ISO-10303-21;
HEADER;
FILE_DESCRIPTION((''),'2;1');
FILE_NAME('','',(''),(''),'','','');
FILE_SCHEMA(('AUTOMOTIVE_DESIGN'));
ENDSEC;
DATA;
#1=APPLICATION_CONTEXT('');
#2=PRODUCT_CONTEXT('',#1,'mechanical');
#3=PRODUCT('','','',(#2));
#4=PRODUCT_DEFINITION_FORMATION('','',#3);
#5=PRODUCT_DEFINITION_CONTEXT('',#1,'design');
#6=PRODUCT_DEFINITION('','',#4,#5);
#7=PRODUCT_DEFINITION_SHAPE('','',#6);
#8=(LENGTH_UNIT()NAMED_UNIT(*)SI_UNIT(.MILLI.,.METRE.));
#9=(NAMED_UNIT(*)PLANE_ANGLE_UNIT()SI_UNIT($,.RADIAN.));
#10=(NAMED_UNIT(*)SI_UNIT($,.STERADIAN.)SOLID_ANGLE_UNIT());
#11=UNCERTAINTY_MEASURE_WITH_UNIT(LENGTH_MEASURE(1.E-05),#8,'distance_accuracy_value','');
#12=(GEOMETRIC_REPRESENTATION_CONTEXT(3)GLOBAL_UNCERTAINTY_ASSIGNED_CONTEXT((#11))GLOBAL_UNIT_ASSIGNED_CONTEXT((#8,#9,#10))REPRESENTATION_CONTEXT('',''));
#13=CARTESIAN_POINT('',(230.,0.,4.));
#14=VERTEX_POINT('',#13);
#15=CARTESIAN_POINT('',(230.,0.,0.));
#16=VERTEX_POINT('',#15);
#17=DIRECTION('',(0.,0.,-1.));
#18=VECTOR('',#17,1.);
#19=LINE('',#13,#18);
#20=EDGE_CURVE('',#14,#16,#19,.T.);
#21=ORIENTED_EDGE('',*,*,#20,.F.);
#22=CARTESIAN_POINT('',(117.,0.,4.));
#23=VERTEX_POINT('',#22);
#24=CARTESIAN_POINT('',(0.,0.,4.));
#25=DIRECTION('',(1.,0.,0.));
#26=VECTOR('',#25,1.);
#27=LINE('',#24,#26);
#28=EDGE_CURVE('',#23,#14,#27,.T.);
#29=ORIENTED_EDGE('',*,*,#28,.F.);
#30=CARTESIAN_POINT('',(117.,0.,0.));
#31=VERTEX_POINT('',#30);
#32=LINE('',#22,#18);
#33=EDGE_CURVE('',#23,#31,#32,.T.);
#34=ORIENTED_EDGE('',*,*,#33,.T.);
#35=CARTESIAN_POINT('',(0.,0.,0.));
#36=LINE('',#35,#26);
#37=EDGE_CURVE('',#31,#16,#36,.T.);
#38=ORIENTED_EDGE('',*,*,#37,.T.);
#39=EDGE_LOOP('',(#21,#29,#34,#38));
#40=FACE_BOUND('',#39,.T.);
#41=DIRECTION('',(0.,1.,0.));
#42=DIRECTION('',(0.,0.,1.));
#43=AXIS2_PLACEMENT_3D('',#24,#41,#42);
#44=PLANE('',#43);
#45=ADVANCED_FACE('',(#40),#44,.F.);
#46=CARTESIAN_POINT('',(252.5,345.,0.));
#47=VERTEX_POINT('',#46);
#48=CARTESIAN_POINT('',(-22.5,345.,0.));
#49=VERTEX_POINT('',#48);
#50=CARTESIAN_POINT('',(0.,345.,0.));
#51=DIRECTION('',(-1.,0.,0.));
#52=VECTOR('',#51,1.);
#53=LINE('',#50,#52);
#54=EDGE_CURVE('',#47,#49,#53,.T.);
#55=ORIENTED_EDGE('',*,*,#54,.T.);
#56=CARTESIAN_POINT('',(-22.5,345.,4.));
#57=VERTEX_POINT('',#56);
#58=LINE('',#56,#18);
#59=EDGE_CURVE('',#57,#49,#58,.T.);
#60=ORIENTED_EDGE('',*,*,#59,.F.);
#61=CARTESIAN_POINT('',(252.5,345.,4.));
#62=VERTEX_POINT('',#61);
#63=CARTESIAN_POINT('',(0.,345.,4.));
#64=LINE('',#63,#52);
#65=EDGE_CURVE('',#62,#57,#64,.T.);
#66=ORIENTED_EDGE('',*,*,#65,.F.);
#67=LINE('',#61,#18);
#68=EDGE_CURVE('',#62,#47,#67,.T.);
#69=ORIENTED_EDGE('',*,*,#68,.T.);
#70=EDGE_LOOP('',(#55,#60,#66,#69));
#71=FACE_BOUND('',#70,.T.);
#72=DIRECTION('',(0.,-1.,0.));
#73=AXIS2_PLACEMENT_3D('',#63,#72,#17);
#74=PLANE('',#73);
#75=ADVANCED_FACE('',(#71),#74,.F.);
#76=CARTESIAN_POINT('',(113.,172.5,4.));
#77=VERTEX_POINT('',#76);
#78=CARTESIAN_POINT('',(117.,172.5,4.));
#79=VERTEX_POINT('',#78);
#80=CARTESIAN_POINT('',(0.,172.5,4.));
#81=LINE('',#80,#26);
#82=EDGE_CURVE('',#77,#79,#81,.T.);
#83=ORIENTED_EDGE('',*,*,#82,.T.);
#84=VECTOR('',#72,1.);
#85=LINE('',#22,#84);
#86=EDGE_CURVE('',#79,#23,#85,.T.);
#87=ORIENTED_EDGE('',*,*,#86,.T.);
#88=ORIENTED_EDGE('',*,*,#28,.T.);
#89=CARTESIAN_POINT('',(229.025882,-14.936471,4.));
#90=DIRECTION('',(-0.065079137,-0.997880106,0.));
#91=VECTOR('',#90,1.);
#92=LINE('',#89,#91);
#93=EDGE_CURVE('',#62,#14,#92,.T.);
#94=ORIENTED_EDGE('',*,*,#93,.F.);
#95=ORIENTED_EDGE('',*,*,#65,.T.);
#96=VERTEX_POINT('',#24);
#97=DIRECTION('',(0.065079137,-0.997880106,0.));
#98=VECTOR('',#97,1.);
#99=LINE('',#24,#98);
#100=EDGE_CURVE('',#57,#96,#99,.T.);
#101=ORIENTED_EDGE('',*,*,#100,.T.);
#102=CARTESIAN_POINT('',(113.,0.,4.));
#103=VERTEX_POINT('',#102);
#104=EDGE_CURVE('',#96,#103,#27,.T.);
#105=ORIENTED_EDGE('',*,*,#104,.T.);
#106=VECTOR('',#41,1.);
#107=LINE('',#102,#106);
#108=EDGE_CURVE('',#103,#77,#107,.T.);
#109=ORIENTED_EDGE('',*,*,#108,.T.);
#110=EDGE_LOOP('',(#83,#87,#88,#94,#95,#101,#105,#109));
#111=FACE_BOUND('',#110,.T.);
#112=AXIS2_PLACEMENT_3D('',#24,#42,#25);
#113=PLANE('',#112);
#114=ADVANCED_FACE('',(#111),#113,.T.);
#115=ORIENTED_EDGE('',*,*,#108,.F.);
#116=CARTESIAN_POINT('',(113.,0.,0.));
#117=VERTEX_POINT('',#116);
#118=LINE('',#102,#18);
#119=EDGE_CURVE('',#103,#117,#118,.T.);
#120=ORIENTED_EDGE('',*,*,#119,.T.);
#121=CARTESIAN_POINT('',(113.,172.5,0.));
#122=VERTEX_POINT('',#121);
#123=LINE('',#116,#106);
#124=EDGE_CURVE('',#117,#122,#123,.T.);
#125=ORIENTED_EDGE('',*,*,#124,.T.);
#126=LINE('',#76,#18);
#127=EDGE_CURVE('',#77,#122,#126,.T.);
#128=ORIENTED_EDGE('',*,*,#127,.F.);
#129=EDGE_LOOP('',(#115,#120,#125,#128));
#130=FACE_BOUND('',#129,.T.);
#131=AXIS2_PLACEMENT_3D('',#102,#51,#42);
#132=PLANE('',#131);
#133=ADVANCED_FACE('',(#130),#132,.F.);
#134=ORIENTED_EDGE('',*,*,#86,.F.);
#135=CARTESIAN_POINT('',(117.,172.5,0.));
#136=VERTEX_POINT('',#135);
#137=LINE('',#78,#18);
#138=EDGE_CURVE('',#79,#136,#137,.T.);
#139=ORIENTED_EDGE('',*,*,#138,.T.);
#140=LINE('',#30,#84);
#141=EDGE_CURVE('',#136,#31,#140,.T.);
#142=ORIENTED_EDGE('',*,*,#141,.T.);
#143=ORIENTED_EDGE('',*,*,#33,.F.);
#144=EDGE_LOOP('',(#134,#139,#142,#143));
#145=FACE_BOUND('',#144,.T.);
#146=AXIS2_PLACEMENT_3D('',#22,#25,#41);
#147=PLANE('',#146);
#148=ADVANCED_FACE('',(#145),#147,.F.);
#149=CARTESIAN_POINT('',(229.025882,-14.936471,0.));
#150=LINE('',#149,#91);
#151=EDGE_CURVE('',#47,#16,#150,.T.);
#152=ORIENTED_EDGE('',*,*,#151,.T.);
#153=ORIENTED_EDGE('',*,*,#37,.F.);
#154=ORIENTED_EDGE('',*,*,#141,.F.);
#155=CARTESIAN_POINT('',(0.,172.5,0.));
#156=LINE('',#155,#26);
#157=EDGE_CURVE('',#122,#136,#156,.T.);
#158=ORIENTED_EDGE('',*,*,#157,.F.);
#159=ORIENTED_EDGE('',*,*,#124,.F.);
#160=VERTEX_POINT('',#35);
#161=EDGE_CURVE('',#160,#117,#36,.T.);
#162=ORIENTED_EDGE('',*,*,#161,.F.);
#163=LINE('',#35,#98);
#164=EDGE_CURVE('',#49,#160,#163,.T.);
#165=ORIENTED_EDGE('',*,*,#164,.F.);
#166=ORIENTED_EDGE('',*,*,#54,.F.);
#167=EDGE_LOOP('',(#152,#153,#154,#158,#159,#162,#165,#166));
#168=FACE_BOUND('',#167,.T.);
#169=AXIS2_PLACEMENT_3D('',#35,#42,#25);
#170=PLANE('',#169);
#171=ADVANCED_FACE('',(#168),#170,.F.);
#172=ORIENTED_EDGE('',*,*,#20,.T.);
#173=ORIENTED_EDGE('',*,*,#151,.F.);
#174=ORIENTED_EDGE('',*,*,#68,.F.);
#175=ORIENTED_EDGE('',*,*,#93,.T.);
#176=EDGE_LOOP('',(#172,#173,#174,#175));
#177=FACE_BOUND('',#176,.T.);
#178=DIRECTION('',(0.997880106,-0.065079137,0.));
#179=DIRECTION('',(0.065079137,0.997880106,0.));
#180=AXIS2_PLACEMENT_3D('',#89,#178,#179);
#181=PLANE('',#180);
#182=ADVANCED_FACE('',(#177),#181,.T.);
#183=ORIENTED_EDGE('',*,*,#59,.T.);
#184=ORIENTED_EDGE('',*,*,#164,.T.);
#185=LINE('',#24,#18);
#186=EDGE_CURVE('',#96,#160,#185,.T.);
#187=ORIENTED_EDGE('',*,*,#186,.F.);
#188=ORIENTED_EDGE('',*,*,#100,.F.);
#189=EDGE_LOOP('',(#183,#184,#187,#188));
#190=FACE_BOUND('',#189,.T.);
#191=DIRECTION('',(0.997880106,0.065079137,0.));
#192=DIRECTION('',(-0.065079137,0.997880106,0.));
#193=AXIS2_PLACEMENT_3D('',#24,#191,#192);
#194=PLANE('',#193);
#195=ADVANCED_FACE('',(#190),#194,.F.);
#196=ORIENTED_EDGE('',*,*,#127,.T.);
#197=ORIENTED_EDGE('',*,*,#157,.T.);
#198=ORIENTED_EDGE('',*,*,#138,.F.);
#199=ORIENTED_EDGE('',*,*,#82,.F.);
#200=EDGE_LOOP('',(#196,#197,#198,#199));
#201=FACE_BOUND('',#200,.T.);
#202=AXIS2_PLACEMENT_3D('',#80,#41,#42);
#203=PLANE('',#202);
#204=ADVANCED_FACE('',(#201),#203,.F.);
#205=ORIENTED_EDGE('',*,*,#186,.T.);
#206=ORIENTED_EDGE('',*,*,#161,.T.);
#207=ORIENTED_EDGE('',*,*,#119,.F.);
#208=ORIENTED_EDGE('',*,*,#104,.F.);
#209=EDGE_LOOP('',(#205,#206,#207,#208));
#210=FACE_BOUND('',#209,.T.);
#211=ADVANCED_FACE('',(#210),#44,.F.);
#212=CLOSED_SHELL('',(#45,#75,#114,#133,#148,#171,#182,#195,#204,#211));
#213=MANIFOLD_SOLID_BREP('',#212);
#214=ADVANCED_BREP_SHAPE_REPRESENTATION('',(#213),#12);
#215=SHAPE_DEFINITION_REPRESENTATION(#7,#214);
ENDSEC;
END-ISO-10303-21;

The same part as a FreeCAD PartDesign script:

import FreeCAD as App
import Part
import Sketcher
from FreeCAD import Vector
Q = App.Units.Quantity

doc = App.newDocument("Part")
body = doc.addObject("PartDesign::Body", "Body")

# Sketch on XY plane
sketch1 = body.newObject("Sketcher::SketchObject", "Sketch")
sketch1.AttachmentSupport = (doc.getObject("XY_Plane"), [""])
sketch1.MapMode = "FlatFace"
sketch1.addGeometry([
    Part.LineSegment(Vector(-22.5, 345, 0), Vector(0, 0, 0)),  # 0
    Part.LineSegment(Vector(0, 0, 0), Vector(113, 0, 0)),  # 1
    Part.LineSegment(Vector(113, 0, 0), Vector(113, 172.5, 0)),  # 2
    Part.LineSegment(Vector(113, 172.5, 0), Vector(117, 172.5, 0)),  # 3
    Part.LineSegment(Vector(117, 172.5, 0), Vector(117, 0, 0)),  # 4
    Part.LineSegment(Vector(117, 0, 0), Vector(230, 0, 0)),  # 5
    Part.LineSegment(Vector(230, 0, 0), Vector(252.5, 345, 0)),  # 6
    Part.LineSegment(Vector(252.5, 345, 0), Vector(-22.5, 345, 0)),  # 7
], False)
sketch1.addConstraint([
    Sketcher.Constraint("Coincident", 0, 2, 1, 1),
    Sketcher.Constraint("Coincident", 1, 2, 2, 1),
    Sketcher.Constraint("Coincident", 2, 2, 3, 1),
    Sketcher.Constraint("Coincident", 3, 2, 4, 1),
    Sketcher.Constraint("Coincident", 4, 2, 5, 1),
    Sketcher.Constraint("Coincident", 5, 2, 6, 1),
    Sketcher.Constraint("Coincident", 6, 2, 7, 1),
    Sketcher.Constraint("Coincident", 7, 2, 0, 1),
    Sketcher.Constraint("Horizontal", 1),
    Sketcher.Constraint("Vertical", 2),
    Sketcher.Constraint("Horizontal", 3),
    Sketcher.Constraint("Vertical", 4),
    Sketcher.Constraint("Horizontal", 5),
    Sketcher.Constraint("Horizontal", 7),
    Sketcher.Constraint("Coincident", 0, 2, -1, 1),
    Sketcher.Constraint("PointOnObject", 4, 2, -1),
    Sketcher.Constraint("Equal", 1, 5),
    Sketcher.Constraint("Equal", 0, 6),
    Sketcher.Constraint("DistanceX", 1, 1, 1, 2, Q("113 mm")),
    Sketcher.Constraint("DistanceX", 3, 1, 3, 2, Q("4 mm")),
    Sketcher.Constraint("DistanceX", 7, 2, 7, 1, Q("275 mm")),
    Sketcher.Constraint("DistanceY", 2, 1, 2, 2, Q("172.5 mm")),
    Sketcher.Constraint("DistanceY", -1, 1, 6, 2, Q("345 mm")),
])
pad1 = body.newObject("PartDesign::Pad", "Pad")
pad1.Profile = sketch1
pad1.Length = 4

doc.recompute()
